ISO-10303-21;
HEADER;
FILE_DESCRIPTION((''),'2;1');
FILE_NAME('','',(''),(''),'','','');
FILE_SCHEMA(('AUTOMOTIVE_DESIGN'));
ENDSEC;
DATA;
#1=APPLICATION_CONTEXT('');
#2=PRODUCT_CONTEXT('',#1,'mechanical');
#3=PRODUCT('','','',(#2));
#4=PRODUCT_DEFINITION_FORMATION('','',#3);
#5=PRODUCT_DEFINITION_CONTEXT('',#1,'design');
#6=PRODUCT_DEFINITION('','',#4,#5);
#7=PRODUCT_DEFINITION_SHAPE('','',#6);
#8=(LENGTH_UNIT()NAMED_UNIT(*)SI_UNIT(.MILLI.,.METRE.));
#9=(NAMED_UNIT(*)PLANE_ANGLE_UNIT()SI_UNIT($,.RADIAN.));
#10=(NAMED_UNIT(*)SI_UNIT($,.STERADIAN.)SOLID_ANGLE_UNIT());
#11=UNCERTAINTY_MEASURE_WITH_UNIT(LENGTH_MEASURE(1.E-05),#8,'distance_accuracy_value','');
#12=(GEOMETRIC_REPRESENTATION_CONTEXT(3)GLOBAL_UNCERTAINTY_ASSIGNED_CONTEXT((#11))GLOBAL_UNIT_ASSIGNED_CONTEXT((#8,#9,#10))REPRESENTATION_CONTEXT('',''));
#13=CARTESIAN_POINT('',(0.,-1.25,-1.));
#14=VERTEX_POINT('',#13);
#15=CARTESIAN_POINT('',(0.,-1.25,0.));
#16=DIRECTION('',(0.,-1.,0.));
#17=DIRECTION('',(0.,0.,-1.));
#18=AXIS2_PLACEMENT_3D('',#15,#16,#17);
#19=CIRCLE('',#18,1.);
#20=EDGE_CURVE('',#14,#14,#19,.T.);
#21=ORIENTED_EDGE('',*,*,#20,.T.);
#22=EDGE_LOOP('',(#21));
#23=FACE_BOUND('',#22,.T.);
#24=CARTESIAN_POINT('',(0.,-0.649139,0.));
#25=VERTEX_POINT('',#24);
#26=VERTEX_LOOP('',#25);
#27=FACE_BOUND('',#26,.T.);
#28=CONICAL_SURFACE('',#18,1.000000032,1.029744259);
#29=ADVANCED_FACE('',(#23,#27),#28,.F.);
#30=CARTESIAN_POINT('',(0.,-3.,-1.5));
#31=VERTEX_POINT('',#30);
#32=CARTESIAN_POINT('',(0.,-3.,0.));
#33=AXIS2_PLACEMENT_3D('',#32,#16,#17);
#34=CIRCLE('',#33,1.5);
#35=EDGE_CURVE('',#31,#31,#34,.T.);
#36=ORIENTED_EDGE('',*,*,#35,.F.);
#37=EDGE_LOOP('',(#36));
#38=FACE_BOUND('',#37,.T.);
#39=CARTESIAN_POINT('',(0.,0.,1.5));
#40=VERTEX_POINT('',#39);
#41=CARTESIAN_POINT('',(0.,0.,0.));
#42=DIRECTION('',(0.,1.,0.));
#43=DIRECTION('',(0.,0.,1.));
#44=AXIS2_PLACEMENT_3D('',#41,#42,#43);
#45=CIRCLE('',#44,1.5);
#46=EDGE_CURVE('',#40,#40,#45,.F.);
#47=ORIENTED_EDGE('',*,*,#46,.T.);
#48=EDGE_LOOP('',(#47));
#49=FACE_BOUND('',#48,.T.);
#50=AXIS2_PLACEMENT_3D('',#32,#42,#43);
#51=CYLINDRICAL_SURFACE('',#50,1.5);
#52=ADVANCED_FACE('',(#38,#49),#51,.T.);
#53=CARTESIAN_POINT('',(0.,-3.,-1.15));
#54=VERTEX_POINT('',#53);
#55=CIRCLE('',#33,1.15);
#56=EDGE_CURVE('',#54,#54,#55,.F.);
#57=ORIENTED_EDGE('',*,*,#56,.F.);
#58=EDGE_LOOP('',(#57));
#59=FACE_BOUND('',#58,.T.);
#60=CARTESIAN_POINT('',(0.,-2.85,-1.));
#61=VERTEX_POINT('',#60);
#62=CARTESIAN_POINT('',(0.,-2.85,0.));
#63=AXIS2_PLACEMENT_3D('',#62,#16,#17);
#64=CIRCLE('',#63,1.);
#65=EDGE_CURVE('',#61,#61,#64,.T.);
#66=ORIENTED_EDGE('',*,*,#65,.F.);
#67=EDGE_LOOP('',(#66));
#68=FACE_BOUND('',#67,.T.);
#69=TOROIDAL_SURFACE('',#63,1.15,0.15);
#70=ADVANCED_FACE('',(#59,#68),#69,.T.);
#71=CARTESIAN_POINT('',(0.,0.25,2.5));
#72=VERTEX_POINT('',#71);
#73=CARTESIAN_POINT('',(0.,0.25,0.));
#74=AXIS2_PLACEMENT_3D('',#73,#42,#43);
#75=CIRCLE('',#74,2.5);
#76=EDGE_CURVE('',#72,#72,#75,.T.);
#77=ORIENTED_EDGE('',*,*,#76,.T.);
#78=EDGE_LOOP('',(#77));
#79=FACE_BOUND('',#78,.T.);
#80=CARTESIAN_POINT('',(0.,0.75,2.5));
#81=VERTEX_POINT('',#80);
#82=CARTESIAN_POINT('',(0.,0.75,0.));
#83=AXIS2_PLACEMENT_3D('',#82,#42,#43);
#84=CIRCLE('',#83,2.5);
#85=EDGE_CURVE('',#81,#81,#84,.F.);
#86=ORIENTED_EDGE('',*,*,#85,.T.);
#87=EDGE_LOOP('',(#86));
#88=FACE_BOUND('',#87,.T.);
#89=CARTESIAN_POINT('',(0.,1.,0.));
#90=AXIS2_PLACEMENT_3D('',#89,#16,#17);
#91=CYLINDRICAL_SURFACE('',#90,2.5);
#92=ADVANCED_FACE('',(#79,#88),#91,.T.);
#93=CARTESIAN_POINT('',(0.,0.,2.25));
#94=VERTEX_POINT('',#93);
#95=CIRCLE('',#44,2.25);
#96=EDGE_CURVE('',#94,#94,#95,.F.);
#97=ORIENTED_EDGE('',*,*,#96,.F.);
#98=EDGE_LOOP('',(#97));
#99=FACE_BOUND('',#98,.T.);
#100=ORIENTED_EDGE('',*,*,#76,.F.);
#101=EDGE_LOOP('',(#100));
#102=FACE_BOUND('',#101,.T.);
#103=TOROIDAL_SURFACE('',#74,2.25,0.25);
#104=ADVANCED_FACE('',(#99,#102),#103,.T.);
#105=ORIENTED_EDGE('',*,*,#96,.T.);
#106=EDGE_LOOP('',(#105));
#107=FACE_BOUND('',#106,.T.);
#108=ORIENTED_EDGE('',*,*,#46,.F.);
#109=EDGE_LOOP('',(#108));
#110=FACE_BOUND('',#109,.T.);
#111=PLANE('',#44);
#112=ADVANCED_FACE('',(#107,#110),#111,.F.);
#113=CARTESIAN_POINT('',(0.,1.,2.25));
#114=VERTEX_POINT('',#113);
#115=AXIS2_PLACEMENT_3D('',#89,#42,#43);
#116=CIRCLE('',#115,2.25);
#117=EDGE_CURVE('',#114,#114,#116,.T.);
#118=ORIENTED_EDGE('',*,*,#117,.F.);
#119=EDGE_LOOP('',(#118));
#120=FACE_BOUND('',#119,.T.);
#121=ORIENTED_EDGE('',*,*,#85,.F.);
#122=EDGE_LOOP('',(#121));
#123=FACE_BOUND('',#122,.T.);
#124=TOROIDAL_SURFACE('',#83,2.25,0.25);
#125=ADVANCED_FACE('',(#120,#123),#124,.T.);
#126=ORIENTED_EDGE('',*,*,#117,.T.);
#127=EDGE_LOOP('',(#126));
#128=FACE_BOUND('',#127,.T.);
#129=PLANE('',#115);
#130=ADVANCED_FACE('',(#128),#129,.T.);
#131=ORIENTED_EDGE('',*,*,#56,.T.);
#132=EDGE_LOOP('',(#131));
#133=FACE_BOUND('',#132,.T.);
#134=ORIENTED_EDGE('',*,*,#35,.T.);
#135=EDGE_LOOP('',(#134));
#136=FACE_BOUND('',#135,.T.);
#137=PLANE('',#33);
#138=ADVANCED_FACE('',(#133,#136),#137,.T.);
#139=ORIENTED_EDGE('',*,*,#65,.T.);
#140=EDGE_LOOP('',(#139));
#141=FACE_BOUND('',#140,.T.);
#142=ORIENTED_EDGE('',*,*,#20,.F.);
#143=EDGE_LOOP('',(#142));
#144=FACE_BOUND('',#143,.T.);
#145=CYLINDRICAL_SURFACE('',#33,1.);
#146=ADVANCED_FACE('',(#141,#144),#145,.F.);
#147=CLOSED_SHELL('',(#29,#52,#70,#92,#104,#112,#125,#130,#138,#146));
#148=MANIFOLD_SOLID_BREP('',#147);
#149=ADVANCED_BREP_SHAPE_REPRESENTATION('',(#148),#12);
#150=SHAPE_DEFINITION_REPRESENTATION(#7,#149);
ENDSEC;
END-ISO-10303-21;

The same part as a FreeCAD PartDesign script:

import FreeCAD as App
import Part
import Sketcher
from FreeCAD import Vector


def edges_at(feature, points):
    """Names of the edges that pass closest to the given points."""
    edges = feature.Shape.Edges
    near = lambda p: min(range(len(edges)), key=lambda i: edges[i].distToShape(Part.Vertex(*p))[0])
    return sorted({f"Edge{near(p) + 1}" for p in points})

doc = App.newDocument("Part")
body = doc.addObject("PartDesign::Body", "Body")

# Sketch on XZ plane
sketch1 = body.newObject("Sketcher::SketchObject", "Sketch")
sketch1.AttachmentSupport = (doc.getObject("XZ_Plane"), [""])
sketch1.MapMode = "FlatFace"
sketch1.addGeometry(Part.Circle(Vector(0, 0, 0), Vector(0, 0, 1), 2.5), False)
sketch1.addConstraint([
    Sketcher.Constraint("Coincident", 0, 3, -1, 1),
    Sketcher.Constraint("Diameter", 0, 5.0),
])
pad1 = body.newObject("PartDesign::Pad", "Pad")
pad1.Profile = sketch1
pad1.Length = 1
pad1.Reversed = True
doc.recompute()

fillet = body.newObject("PartDesign::Fillet", "Fillet")
fillet.Base = (pad1, edges_at(pad1, [(0, 0, -2.5), (0, 1, -2.5)]))
fillet.Radius = 0.25

# Sketch on XZ plane
sketch2 = body.newObject("Sketcher::SketchObject", "Sketch001")
sketch2.AttachmentSupport = (doc.getObject("XZ_Plane"), [""])
sketch2.MapMode = "FlatFace"
sketch2.addGeometry(Part.Circle(Vector(0, 0, 0), Vector(0, 0, 1), 1.5), False)
sketch2.addConstraint([
    Sketcher.Constraint("Coincident", 0, 3, -1, 1),
    Sketcher.Constraint("Diameter", 0, 3.0),
])
pad2 = body.newObject("PartDesign::Pad", "Pad001")
pad2.Profile = sketch2
pad2.Length = 3

# Sketch on XZ plane
sketch3 = body.newObject("Sketcher::SketchObject", "Sketch002")
sketch3.AttachmentSupport = (doc.getObject("XZ_Plane"), [""])
sketch3.MapMode = "FlatFace"
sketch3.AttachmentOffset = App.Placement(Vector(0, 0, 3), App.Rotation())
sketch3.addGeometry(Part.Circle(Vector(0, 0, 0), Vector(0, 0, 1), 1), False)
sketch3.addConstraint([
    Sketcher.Constraint("Coincident", 0, 3, -1, 1),
    Sketcher.Constraint("Diameter", 0, 2.0),
])
doc.recompute()
hole = body.newObject("PartDesign::Hole", "Hole")
hole.Profile = sketch3
hole.ThreadType = "None"
hole.Diameter = 2
hole.DepthType = "Dimension"
hole.Depth = 1.75
hole.DrillPoint = "Angled"
hole.DrillPointAngle = 118
doc.recompute()

fillet2 = body.newObject("PartDesign::Fillet", "Fillet001")
fillet2.Base = (hole, edges_at(hole, [(-1, -3, 0)]))
fillet2.Radius = 0.15

doc.recompute()
